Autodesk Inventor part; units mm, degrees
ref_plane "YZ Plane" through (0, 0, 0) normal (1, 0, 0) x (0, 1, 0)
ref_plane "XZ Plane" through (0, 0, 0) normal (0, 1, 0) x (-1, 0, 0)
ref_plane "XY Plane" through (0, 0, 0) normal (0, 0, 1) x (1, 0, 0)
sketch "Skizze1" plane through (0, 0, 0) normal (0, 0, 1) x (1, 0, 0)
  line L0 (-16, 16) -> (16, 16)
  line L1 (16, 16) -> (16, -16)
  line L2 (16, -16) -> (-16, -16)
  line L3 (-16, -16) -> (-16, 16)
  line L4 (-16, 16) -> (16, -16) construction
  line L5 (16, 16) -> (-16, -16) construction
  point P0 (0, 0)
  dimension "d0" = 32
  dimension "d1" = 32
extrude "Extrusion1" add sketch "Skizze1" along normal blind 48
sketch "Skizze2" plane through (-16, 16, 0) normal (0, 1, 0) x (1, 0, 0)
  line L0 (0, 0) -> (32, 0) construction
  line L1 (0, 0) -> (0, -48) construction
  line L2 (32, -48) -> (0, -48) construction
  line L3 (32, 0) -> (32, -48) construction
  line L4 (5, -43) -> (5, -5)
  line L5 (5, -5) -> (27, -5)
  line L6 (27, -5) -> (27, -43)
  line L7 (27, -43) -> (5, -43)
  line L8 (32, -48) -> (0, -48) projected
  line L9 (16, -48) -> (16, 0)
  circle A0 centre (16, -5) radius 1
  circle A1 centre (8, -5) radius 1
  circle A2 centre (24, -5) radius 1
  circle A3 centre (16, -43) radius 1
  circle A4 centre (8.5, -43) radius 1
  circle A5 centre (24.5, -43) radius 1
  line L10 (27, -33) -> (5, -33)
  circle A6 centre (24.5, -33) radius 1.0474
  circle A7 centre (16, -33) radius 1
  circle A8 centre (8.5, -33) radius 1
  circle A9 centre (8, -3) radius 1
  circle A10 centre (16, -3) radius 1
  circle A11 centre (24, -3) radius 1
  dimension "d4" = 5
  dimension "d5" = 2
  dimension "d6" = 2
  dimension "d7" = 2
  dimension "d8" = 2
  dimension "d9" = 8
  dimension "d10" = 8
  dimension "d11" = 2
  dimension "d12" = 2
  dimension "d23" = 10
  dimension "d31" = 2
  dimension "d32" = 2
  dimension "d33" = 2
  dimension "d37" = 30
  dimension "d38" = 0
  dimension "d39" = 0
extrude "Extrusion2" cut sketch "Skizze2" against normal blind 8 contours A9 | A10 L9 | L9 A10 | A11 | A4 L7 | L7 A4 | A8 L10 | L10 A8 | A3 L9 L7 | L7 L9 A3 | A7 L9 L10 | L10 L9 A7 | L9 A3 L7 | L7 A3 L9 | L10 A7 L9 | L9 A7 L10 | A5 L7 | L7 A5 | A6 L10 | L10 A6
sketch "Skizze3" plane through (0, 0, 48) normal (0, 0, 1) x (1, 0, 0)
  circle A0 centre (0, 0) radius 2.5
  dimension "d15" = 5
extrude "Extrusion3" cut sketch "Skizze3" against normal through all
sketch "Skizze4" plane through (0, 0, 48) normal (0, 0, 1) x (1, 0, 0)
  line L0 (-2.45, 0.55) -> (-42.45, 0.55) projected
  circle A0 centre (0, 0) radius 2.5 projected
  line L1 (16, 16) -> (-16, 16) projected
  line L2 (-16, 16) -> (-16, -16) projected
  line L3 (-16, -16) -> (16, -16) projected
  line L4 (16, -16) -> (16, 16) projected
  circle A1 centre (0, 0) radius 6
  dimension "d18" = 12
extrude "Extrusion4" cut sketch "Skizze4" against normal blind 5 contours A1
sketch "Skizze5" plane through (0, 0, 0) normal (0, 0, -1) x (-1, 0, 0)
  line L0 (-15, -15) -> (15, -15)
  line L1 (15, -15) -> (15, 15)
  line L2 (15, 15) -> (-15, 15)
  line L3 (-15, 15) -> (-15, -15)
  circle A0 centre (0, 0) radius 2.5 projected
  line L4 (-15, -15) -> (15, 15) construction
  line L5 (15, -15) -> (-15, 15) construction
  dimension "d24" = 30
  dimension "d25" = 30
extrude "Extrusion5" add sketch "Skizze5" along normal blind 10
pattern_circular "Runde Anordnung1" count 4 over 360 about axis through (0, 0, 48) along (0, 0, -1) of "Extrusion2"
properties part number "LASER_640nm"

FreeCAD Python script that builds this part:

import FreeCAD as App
import Part
import Sketcher
Q = App.Units.Quantity


def add_polygon(sketch, points):
    """Adds a closed chain of lines whose ends are joined by coincident constraints."""
    first, n = sketch.GeometryCount, len(points)
    for a, b in zip(points, points[1:] + points[:1]):
        sketch.addGeometry(Part.LineSegment(App.Vector(*a, 0), App.Vector(*b, 0)), False)
    for i in range(n):
        sketch.addConstraint(Sketcher.Constraint("Coincident", first + i, 2, first + (i + 1) % n, 1))

doc = App.newDocument("Part")
body = doc.addObject("PartDesign::Body", "Body")

sketch1 = body.newObject("Sketcher::SketchObject", "Sketch")
sketch1.AttachmentSupport = (doc.getObject("XY_Plane"), [""])
sketch1.MapMode = "FlatFace"
add_polygon(sketch1, [(16, 16), (-16, 16), (-16, -16), (16, -16)])
sketch1.addConstraint(Sketcher.Constraint("Horizontal", 0))
sketch1.addConstraint(Sketcher.Constraint("Vertical", 1))
sketch1.addConstraint(Sketcher.Constraint("Horizontal", 2))
sketch1.addConstraint(Sketcher.Constraint("Vertical", 3))
sketch1.addConstraint(Sketcher.Constraint("Symmetric", 0, 2, 2, 2, -1, 1))
sketch1.addConstraint(Sketcher.Constraint("Equal", 2, 1))
sketch1.addConstraint(Sketcher.Constraint("DistanceX", 0, 2, 0, 1, Q("32 mm")))
pad1 = body.newObject("PartDesign::Pad", "Pad")
pad1.Profile = sketch1
pad1.Length = 48

sketch2 = body.newObject("Sketcher::SketchObject", "Sketch001")
sketch2.AttachmentSupport = (doc.getObject("XZ_Plane"), [""])
sketch2.MapMode = "FlatFace"
sketch2.AttachmentOffset = App.Placement(App.Vector(0, 0, -16), App.Rotation())
sketch2.addGeometry(Part.Circle(App.Vector(-8, 3, 0), App.Vector(0, 0, 1), 1), False)
sketch2.addGeometry(Part.Circle(App.Vector(0, 3, 0), App.Vector(0, 0, 1), 1), False)
sketch2.addGeometry(Part.Circle(App.Vector(8, 3, 0), App.Vector(0, 0, 1), 1), False)
sketch2.addGeometry(Part.Circle(App.Vector(-7.5, 43, 0), App.Vector(0, 0, 1), 1), False)
sketch2.addGeometry(Part.Circle(App.Vector(-7.5, 33, 0), App.Vector(0, 0, 1), 1), False)
sketch2.addGeometry(Part.Circle(App.Vector(0, 43, 0), App.Vector(0, 0, 1), 1), False)
sketch2.addGeometry(Part.Circle(App.Vector(0, 33, 0), App.Vector(0, 0, 1), 1), False)
sketch2.addGeometry(Part.Circle(App.Vector(8.5, 43, 0), App.Vector(0, 0, 1), 1), False)
sketch2.addGeometry(Part.Circle(App.Vector(8.5, 33, 0), App.Vector(0, 0, 1), 1), False)
sketch2.addConstraint(Sketcher.Constraint("Equal", 0, 1))
sketch2.addConstraint(Sketcher.Constraint("Equal", 1, 2))
sketch2.addConstraint(Sketcher.Constraint("Equal", 2, 3))
sketch2.addConstraint(Sketcher.Constraint("Equal", 3, 4))
sketch2.addConstraint(Sketcher.Constraint("Equal", 4, 5))
sketch2.addConstraint(Sketcher.Constraint("Equal", 5, 6))
sketch2.addConstraint(Sketcher.Constraint("Equal", 6, 7))
sketch2.addConstraint(Sketcher.Constraint("Symmetric", 0, 3, 2, 3, -2))
sketch2.addConstraint(Sketcher.Constraint("PointOnObject", 1, 3, -2))
sketch2.addConstraint(Sketcher.Constraint("PointOnObject", 5, 3, -2))
sketch2.addConstraint(Sketcher.Constraint("PointOnObject", 6, 3, -2))
sketch2.addConstraint(Sketcher.Constraint("Horizontal", 0, 3, 1, 3))
sketch2.addConstraint(Sketcher.Constraint("Horizontal", 3, 3, 5, 3))
sketch2.addConstraint(Sketcher.Constraint("Horizontal", 4, 3, 6, 3))
sketch2.addConstraint(Sketcher.Constraint("Horizontal", 5, 3, 7, 3))
sketch2.addConstraint(Sketcher.Constraint("Horizontal", 6, 3, 8, 3))
sketch2.addConstraint(Sketcher.Constraint("Vertical", 3, 3, 4, 3))
sketch2.addConstraint(Sketcher.Constraint("Vertical", 7, 3, 8, 3))
sketch2.addConstraint(Sketcher.Constraint("Diameter", 0, Q("2 mm")))
sketch2.addConstraint(Sketcher.Constraint("DistanceX", 0, 3, -1, 1, Q("8 mm")))
sketch2.addConstraint(Sketcher.Constraint("DistanceY", 4, 3, 3, 3, Q("10 mm")))
sketch2.addConstraint(Sketcher.Constraint("DistanceY", 0, 3, 4, 3, Q("30 mm")))
sketch2.addConstraint(Sketcher.Constraint("DistanceY", -1, 1, 0, 3, Q("3 mm")))
sketch2.addConstraint(Sketcher.Constraint("DistanceX", 3, 3, 7, 3, Q("16 mm")))
sketch2.addConstraint(Sketcher.Constraint("Diameter", 8, Q("2.0948 mm")))
sketch2.addConstraint(Sketcher.Constraint("DistanceX", 3, 3, -1, 1, Q("7.5 mm")))
pocket1 = body.newObject("PartDesign::Pocket", "Pocket")
pocket1.Profile = sketch2
pocket1.Length = 8
pocket1.Reversed = True

sketch3 = body.newObject("Sketcher::SketchObject", "Sketch002")
sketch3.AttachmentSupport = (doc.getObject("XY_Plane"), [""])
sketch3.MapMode = "FlatFace"
sketch3.AttachmentOffset = App.Placement(App.Vector(0, 0, 48), App.Rotation())
sketch3.addGeometry(Part.Circle(App.Vector(0, 0, 0), App.Vector(0, 0, 1), 2.5), False)
sketch3.addConstraint(Sketcher.Constraint("Coincident", 0, 3, -1, 1))
sketch3.addConstraint(Sketcher.Constraint("Diameter", 0, Q("5 mm")))
pocket2 = body.newObject("PartDesign::Pocket", "Pocket001")
pocket2.Profile = sketch3
pocket2.Type = "ThroughAll"

sketch4 = body.newObject("Sketcher::SketchObject", "Sketch003")
sketch4.AttachmentSupport = (doc.getObject("XY_Plane"), [""])
sketch4.MapMode = "FlatFace"
sketch4.AttachmentOffset = App.Placement(App.Vector(0, 0, 48), App.Rotation())
sketch4.addGeometry(Part.Circle(App.Vector(0, 0, 0), App.Vector(0, 0, 1), 6), False)
sketch4.addGeometry(Part.Circle(App.Vector(0, 0, 0), App.Vector(0, 0, 1), 2.5), False)
sketch4.addConstraint(Sketcher.Constraint("Coincident", 0, 3, -1, 1))
sketch4.addConstraint(Sketcher.Constraint("Coincident", 1, 3, -1, 1))
sketch4.addConstraint(Sketcher.Constraint("Diameter", 0, Q("12 mm")))
sketch4.addConstraint(Sketcher.Constraint("Diameter", 1, Q("5 mm")))
pocket3 = body.newObject("PartDesign::Pocket", "Pocket002")
pocket3.Profile = sketch4
pocket3.Length = 5

sketch5 = body.newObject("Sketcher::SketchObject", "Sketch004")
sketch5.AttachmentSupport = (doc.getObject("XY_Plane"), [""])
sketch5.MapMode = "FlatFace"
add_polygon(sketch5, [(15, 15), (15, -15), (-15, -15), (-15, 15)])
sketch5.addGeometry(Part.Circle(App.Vector(0, 0, 0), App.Vector(0, 0, 1), 2.5), False)
sketch5.addConstraint(Sketcher.Constraint("Vertical", 0))
sketch5.addConstraint(Sketcher.Constraint("Horizontal", 1))
sketch5.addConstraint(Sketcher.Constraint("Vertical", 2))
sketch5.addConstraint(Sketcher.Constraint("Horizontal", 3))
sketch5.addConstraint(Sketcher.Constraint("Coincident", 4, 3, -1, 1))
sketch5.addConstraint(Sketcher.Constraint("Symmetric", 0, 2, 2, 2, -1, 1))
sketch5.addConstraint(Sketcher.Constraint("Equal", 3, 0))
sketch5.addConstraint(Sketcher.Constraint("DistanceX", 1, 2, 1, 1, Q("30 mm")))
sketch5.addConstraint(Sketcher.Constraint("Diameter", 4, Q("5 mm")))
pad2 = body.newObject("PartDesign::Pad", "Pad001")
pad2.Profile = sketch5
pad2.Length = 10
pad2.Reversed = True
doc.recompute()

polarpattern = body.newObject("PartDesign::PolarPattern", "PolarPattern")
polarpattern.Originals = [pocket1]
polarpattern.Axis = (doc.getObject("Z_Axis"), [""])
polarpattern.Angle = 360
polarpattern.Occurrences = 4
body.Tip = polarpattern

doc.recompute()
